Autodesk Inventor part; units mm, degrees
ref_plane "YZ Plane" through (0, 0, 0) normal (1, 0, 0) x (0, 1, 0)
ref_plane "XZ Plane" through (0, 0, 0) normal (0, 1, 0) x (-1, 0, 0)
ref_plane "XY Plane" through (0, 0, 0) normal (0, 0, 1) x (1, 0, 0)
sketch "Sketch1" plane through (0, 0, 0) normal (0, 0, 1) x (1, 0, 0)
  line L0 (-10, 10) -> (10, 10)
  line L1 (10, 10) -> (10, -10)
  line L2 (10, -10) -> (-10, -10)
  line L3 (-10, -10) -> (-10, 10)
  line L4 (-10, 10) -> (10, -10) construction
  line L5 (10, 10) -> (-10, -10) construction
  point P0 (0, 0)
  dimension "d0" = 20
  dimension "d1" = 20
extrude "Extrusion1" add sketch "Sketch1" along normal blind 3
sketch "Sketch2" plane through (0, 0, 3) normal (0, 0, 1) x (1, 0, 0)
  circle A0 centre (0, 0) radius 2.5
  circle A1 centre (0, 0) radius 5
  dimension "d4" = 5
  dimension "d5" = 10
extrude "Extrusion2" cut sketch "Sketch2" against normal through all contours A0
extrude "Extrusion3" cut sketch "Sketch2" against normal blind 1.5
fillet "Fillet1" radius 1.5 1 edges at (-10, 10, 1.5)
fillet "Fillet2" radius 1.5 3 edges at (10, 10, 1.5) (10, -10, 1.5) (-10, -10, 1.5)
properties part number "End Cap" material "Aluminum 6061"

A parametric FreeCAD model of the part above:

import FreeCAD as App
import Part
import Sketcher
from FreeCAD import Vector
Q = App.Units.Quantity


def edges_at(feature, points):
    """Names of the edges that pass closest to the given points."""
    edges = feature.Shape.Edges
    near = lambda p: min(range(len(edges)), key=lambda i: edges[i].distToShape(Part.Vertex(*p))[0])
    return sorted({f"Edge{near(p) + 1}" for p in points})

doc = App.newDocument("Part")
body = doc.addObject("PartDesign::Body", "Body")

sketch1 = doc.addObject("Sketcher::SketchObject", "Sketch")
body.addObject(sketch1)
sketch1.AttachmentSupport = (doc.XY_Plane, [""])
sketch1.MapMode = "FlatFace"
sketch1.addGeometry([
    Part.LineSegment(Vector(10, 10, 0), Vector(-10, 10, 0)),
    Part.LineSegment(Vector(-10, 10, 0), Vector(-10, -10, 0)),
    Part.LineSegment(Vector(-10, -10, 0), Vector(10, -10, 0)),
    Part.LineSegment(Vector(10, -10, 0), Vector(10, 10, 0)),
], False)
sketch1.addConstraint([
    Sketcher.Constraint("Coincident", 0, 2, 1, 1),
    Sketcher.Constraint("Coincident", 1, 2, 2, 1),
    Sketcher.Constraint("Coincident", 2, 2, 3, 1),
    Sketcher.Constraint("Coincident", 3, 2, 0, 1),
    Sketcher.Constraint("Horizontal", 0),
    Sketcher.Constraint("Vertical", 1),
    Sketcher.Constraint("Horizontal", 2),
    Sketcher.Constraint("Vertical", 3),
    Sketcher.Constraint("Symmetric", 0, 2, 2, 2, -1, 1),
    Sketcher.Constraint("Equal", 2, 1),
    Sketcher.Constraint("DistanceX", 0, 2, 0, 1, Q("20 mm")),
])
pad1 = doc.addObject("PartDesign::Pad", "Pad")
body.addObject(pad1)
pad1.Profile = sketch1
pad1.Length = 3

sketch2 = doc.addObject("Sketcher::SketchObject", "Sketch001")
body.addObject(sketch2)
sketch2.AttachmentSupport = (doc.XY_Plane, [""])
sketch2.MapMode = "FlatFace"
sketch2.AttachmentOffset = App.Placement(Vector(0, 0, 3), App.Rotation())
sketch2.addGeometry(Part.Circle(Vector(0, 0, 0), Vector(0, 0, 1), 2.5), False)
sketch2.addConstraint([
    Sketcher.Constraint("Coincident", 0, 3, -1, 1),
    Sketcher.Constraint("Diameter", 0, Q("5 mm")),
])
pocket1 = doc.addObject("PartDesign::Pocket", "Pocket")
body.addObject(pocket1)
pocket1.Profile = sketch2
pocket1.Type = "ThroughAll"

sketch3 = doc.addObject("Sketcher::SketchObject", "Sketch002")
body.addObject(sketch3)
sketch3.AttachmentSupport = (doc.XY_Plane, [""])
sketch3.MapMode = "FlatFace"
sketch3.AttachmentOffset = App.Placement(Vector(0, 0, 3), App.Rotation())
sketch3.addGeometry([
    Part.Circle(Vector(0, 0, 0), Vector(0, 0, 1), 5),
    Part.Circle(Vector(0, 0, 0), Vector(0, 0, 1), 2.5),
], False)
sketch3.addConstraint([
    Sketcher.Constraint("Coincident", 0, 3, -1, 1),
    Sketcher.Constraint("Coincident", 1, 3, -1, 1),
    Sketcher.Constraint("Diameter", 0, Q("10 mm")),
    Sketcher.Constraint("Diameter", 1, Q("5 mm")),
])
pocket2 = doc.addObject("PartDesign::Pocket", "Pocket001")
body.addObject(pocket2)
pocket2.Profile = sketch3
pocket2.Length = 1.5
doc.recompute()

fillet = doc.addObject("PartDesign::Fillet", "Fillet")
body.addObject(fillet)
fillet.Base = (pocket2, edges_at(pocket2, [(-10, 10, 1.5)]))
fillet.Radius = 1.5
doc.recompute()

fillet2 = doc.addObject("PartDesign::Fillet", "Fillet001")
body.addObject(fillet2)
fillet2.Base = (fillet, edges_at(fillet, [(10, 10, 1.5), (10, -10, 1.5), (-10, -10, 1.5)]))
fillet2.Radius = 1.5

doc.recompute()
